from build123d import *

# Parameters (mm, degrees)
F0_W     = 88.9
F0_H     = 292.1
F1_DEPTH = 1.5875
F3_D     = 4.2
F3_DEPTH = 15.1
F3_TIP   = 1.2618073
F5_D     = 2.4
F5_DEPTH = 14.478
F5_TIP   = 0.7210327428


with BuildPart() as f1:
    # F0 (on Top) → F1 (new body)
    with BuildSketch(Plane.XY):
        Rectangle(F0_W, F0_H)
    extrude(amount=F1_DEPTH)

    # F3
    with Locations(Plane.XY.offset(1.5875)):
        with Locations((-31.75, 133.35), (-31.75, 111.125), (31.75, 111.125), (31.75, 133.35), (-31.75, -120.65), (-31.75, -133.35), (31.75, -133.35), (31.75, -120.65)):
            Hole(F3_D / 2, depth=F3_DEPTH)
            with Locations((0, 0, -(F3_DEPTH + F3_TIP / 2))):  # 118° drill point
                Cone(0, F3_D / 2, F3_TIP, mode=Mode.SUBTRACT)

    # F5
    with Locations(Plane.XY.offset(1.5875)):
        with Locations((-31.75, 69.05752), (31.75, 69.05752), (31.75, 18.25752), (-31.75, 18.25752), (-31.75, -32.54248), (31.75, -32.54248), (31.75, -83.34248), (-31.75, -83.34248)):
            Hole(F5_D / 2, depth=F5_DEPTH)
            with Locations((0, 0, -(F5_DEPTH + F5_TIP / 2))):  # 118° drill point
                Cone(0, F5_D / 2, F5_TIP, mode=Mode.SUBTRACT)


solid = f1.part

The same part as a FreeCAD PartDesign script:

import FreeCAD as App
import Part
import Sketcher
from FreeCAD import Vector
Q = App.Units.Quantity


def add_polygon(sketch, points):
    """Adds a closed chain of lines whose ends are joined by coincident constraints."""
    first, n = sketch.GeometryCount, len(points)
    for a, b in zip(points, points[1:] + points[:1]):
        sketch.addGeometry(Part.LineSegment(App.Vector(*a, 0), App.Vector(*b, 0)), False)
    for i in range(n):
        sketch.addConstraint(Sketcher.Constraint("Coincident", first + i, 2, first + (i + 1) % n, 1))

doc = App.newDocument("Part")
body = doc.addObject("PartDesign::Body", "Body")

# Sketch on XY plane
sketch1 = body.newObject("Sketcher::SketchObject", "Sketch")
sketch1.AttachmentSupport = (doc.getObject("XY_Plane"), [""])
sketch1.MapMode = "FlatFace"
add_polygon(sketch1, [(-44, 146), (-44, -146), (44, -146), (44, 146)])  # lines 0-3
sketch1.addConstraint(Sketcher.Constraint("Vertical", 0))
sketch1.addConstraint(Sketcher.Constraint("Horizontal", 1))
sketch1.addConstraint(Sketcher.Constraint("Vertical", 2))
sketch1.addConstraint(Sketcher.Constraint("Horizontal", 3))
sketch1.addConstraint(Sketcher.Constraint("Symmetric", 0, 2, 2, 2, -1, 1))
sketch1.addConstraint(Sketcher.Constraint("DistanceX", 1, 1, 1, 2, Q("3.5 in")))
sketch1.addConstraint(Sketcher.Constraint("DistanceY", 0, 2, 0, 1, Q("11.5 in")))
pad1 = body.newObject("PartDesign::Pad", "Pad")
pad1.Profile = sketch1
pad1.Length = Q("0.0625 in")

# Sketch on XY plane
sketch2 = body.newObject("Sketcher::SketchObject", "Sketch001")
sketch2.AttachmentSupport = (doc.getObject("XY_Plane"), [""])
sketch2.MapMode = "FlatFace"
sketch2.AttachmentOffset = App.Placement(Vector(0, 0, 0.0625 * 25.4), App.Rotation())
sketch2.addGeometry(Part.Circle(Vector(-31.8, 133.3, 0), Vector(0, 0, 1), 2.1), False)
sketch2.addGeometry(Part.Circle(Vector(-31.8, 111.1, 0), Vector(0, 0, 1), 2.1), False)
sketch2.addGeometry(Part.Circle(Vector(31.8, 111.1, 0), Vector(0, 0, 1), 2.1), False)
sketch2.addGeometry(Part.Circle(Vector(31.8, 133.3, 0), Vector(0, 0, 1), 2.1), False)
sketch2.addGeometry(Part.Circle(Vector(-31.8, -120.7, 0), Vector(0, 0, 1), 2.1), False)
sketch2.addGeometry(Part.Circle(Vector(-31.8, -133.3, 0), Vector(0, 0, 1), 2.1), False)
sketch2.addGeometry(Part.Circle(Vector(31.8, -133.3, 0), Vector(0, 0, 1), 2.1), False)
sketch2.addGeometry(Part.Circle(Vector(31.8, -120.7, 0), Vector(0, 0, 1), 2.1), False)
sketch2.addConstraint(Sketcher.Constraint("Equal", 0, 1))
sketch2.addConstraint(Sketcher.Constraint("Equal", 1, 2))
sketch2.addConstraint(Sketcher.Constraint("Equal", 2, 3))
sketch2.addConstraint(Sketcher.Constraint("Equal", 3, 4))
sketch2.addConstraint(Sketcher.Constraint("Equal", 4, 5))
sketch2.addConstraint(Sketcher.Constraint("Equal", 5, 6))
sketch2.addConstraint(Sketcher.Constraint("Equal", 6, 7))
sketch2.addConstraint(Sketcher.Constraint("Symmetric", 3, 3, 5, 3, -1, 1))
sketch2.addConstraint(Sketcher.Constraint("Symmetric", 0, 3, 6, 3, -1, 1))
sketch2.addConstraint(Sketcher.Constraint("Symmetric", 1, 3, 2, 3, -2))
sketch2.addConstraint(Sketcher.Constraint("Symmetric", 0, 3, 3, 3, -2))
sketch2.addConstraint(Sketcher.Constraint("Symmetric", 4, 3, 7, 3, -2))
sketch2.addConstraint(Sketcher.Constraint("Vertical", 0, 3, 1, 3))
sketch2.addConstraint(Sketcher.Constraint("Vertical", 1, 3, 4, 3))
sketch2.addConstraint(Sketcher.Constraint("DistanceY", 4, 3, 0, 3, Q("10 in")))
sketch2.addConstraint(Sketcher.Constraint("DistanceX", 1, 3, 2, 3, Q("2.5 in")))
sketch2.addConstraint(Sketcher.Constraint("DistanceY", 5, 3, 4, 3, Q("0.5 in")))
sketch2.addConstraint(Sketcher.Constraint("Diameter", 0, 4.2))
sketch2.addConstraint(Sketcher.Constraint("DistanceY", -1, 1, 1, 3, Q("4.375 in")))
doc.recompute()
hole = body.newObject("PartDesign::Hole", "Hole")
hole.Profile = sketch2
hole.ThreadType = "None"
hole.Diameter = 4.2
hole.DepthType = "Dimension"
hole.Depth = 15.1
hole.DrillPoint = "Angled"
hole.DrillPointAngle = 118

# Sketch on XY plane
sketch3 = body.newObject("Sketcher::SketchObject", "Sketch002")
sketch3.AttachmentSupport = (doc.getObject("XY_Plane"), [""])
sketch3.MapMode = "FlatFace"
sketch3.AttachmentOffset = App.Placement(Vector(0, 0, 0.0625 * 25.4), App.Rotation())
sketch3.addGeometry(Part.Circle(Vector(-31.8, 69.1, 0), Vector(0, 0, 1), 1.2), False)
sketch3.addGeometry(Part.Circle(Vector(31.8, 69.1, 0), Vector(0, 0, 1), 1.2), False)
sketch3.addGeometry(Part.Circle(Vector(31.8, 18.3, 0), Vector(0, 0, 1), 1.2), False)
sketch3.addGeometry(Part.Circle(Vector(-31.8, 18.3, 0), Vector(0, 0, 1), 1.2), False)
sketch3.addGeometry(Part.Circle(Vector(-31.8, -32.5, 0), Vector(0, 0, 1), 1.2), False)
sketch3.addGeometry(Part.Circle(Vector(31.8, -32.5, 0), Vector(0, 0, 1), 1.2), False)
sketch3.addGeometry(Part.Circle(Vector(31.8, -83.3, 0), Vector(0, 0, 1), 1.2), False)
sketch3.addGeometry(Part.Circle(Vector(-31.8, -83.3, 0), Vector(0, 0, 1), 1.2), False)
sketch3.addConstraint(Sketcher.Constraint("Equal", 0, 1))
sketch3.addConstraint(Sketcher.Constraint("Equal", 1, 2))
sketch3.addConstraint(Sketcher.Constraint("Equal", 2, 3))
sketch3.addConstraint(Sketcher.Constraint("Equal", 3, 4))
sketch3.addConstraint(Sketcher.Constraint("Equal", 4, 5))
sketch3.addConstraint(Sketcher.Constraint("Equal", 5, 6))
sketch3.addConstraint(Sketcher.Constraint("Equal", 6, 7))
sketch3.addConstraint(Sketcher.Constraint("Symmetric", 0, 3, 1, 3, -2))
sketch3.addConstraint(Sketcher.Constraint("Symmetric", 2, 3, 3, 3, -2))
sketch3.addConstraint(Sketcher.Constraint("Symmetric", 4, 3, 5, 3, -2))
sketch3.addConstraint(Sketcher.Constraint("Symmetric", 6, 3, 7, 3, -2))
sketch3.addConstraint(Sketcher.Constraint("Vertical", 1, 3, 2, 3))
sketch3.addConstraint(Sketcher.Constraint("Vertical", 3, 3, 4, 3))
sketch3.addConstraint(Sketcher.Constraint("Vertical", 5, 3, 6, 3))
sketch3.addConstraint(Sketcher.Constraint("DistanceY", 2, 3, 1, 3, Q("2 in")))
sketch3.addConstraint(Sketcher.Constraint("DistanceY", 4, 3, 3, 3, Q("2 in")))
sketch3.addConstraint(Sketcher.Constraint("DistanceY", 6, 3, 5, 3, Q("2 in")))
sketch3.addConstraint(Sketcher.Constraint("DistanceX", 0, 3, 1, 3, Q("2.5 in")))
sketch3.addConstraint(Sketcher.Constraint("Diameter", 0, 2.4))
sketch3.addConstraint(Sketcher.Constraint("DistanceY", -1, 1, 0, 3, Q("2.7188 in")))
doc.recompute()
hole2 = body.newObject("PartDesign::Hole", "Hole001")
hole2.Profile = sketch3
hole2.ThreadType = "None"
hole2.Diameter = 2.4
hole2.DepthType = "Dimension"
hole2.Depth = Q("0.57 in")
hole2.DrillPoint = "Angled"
hole2.DrillPointAngle = 118

doc.recompute()
